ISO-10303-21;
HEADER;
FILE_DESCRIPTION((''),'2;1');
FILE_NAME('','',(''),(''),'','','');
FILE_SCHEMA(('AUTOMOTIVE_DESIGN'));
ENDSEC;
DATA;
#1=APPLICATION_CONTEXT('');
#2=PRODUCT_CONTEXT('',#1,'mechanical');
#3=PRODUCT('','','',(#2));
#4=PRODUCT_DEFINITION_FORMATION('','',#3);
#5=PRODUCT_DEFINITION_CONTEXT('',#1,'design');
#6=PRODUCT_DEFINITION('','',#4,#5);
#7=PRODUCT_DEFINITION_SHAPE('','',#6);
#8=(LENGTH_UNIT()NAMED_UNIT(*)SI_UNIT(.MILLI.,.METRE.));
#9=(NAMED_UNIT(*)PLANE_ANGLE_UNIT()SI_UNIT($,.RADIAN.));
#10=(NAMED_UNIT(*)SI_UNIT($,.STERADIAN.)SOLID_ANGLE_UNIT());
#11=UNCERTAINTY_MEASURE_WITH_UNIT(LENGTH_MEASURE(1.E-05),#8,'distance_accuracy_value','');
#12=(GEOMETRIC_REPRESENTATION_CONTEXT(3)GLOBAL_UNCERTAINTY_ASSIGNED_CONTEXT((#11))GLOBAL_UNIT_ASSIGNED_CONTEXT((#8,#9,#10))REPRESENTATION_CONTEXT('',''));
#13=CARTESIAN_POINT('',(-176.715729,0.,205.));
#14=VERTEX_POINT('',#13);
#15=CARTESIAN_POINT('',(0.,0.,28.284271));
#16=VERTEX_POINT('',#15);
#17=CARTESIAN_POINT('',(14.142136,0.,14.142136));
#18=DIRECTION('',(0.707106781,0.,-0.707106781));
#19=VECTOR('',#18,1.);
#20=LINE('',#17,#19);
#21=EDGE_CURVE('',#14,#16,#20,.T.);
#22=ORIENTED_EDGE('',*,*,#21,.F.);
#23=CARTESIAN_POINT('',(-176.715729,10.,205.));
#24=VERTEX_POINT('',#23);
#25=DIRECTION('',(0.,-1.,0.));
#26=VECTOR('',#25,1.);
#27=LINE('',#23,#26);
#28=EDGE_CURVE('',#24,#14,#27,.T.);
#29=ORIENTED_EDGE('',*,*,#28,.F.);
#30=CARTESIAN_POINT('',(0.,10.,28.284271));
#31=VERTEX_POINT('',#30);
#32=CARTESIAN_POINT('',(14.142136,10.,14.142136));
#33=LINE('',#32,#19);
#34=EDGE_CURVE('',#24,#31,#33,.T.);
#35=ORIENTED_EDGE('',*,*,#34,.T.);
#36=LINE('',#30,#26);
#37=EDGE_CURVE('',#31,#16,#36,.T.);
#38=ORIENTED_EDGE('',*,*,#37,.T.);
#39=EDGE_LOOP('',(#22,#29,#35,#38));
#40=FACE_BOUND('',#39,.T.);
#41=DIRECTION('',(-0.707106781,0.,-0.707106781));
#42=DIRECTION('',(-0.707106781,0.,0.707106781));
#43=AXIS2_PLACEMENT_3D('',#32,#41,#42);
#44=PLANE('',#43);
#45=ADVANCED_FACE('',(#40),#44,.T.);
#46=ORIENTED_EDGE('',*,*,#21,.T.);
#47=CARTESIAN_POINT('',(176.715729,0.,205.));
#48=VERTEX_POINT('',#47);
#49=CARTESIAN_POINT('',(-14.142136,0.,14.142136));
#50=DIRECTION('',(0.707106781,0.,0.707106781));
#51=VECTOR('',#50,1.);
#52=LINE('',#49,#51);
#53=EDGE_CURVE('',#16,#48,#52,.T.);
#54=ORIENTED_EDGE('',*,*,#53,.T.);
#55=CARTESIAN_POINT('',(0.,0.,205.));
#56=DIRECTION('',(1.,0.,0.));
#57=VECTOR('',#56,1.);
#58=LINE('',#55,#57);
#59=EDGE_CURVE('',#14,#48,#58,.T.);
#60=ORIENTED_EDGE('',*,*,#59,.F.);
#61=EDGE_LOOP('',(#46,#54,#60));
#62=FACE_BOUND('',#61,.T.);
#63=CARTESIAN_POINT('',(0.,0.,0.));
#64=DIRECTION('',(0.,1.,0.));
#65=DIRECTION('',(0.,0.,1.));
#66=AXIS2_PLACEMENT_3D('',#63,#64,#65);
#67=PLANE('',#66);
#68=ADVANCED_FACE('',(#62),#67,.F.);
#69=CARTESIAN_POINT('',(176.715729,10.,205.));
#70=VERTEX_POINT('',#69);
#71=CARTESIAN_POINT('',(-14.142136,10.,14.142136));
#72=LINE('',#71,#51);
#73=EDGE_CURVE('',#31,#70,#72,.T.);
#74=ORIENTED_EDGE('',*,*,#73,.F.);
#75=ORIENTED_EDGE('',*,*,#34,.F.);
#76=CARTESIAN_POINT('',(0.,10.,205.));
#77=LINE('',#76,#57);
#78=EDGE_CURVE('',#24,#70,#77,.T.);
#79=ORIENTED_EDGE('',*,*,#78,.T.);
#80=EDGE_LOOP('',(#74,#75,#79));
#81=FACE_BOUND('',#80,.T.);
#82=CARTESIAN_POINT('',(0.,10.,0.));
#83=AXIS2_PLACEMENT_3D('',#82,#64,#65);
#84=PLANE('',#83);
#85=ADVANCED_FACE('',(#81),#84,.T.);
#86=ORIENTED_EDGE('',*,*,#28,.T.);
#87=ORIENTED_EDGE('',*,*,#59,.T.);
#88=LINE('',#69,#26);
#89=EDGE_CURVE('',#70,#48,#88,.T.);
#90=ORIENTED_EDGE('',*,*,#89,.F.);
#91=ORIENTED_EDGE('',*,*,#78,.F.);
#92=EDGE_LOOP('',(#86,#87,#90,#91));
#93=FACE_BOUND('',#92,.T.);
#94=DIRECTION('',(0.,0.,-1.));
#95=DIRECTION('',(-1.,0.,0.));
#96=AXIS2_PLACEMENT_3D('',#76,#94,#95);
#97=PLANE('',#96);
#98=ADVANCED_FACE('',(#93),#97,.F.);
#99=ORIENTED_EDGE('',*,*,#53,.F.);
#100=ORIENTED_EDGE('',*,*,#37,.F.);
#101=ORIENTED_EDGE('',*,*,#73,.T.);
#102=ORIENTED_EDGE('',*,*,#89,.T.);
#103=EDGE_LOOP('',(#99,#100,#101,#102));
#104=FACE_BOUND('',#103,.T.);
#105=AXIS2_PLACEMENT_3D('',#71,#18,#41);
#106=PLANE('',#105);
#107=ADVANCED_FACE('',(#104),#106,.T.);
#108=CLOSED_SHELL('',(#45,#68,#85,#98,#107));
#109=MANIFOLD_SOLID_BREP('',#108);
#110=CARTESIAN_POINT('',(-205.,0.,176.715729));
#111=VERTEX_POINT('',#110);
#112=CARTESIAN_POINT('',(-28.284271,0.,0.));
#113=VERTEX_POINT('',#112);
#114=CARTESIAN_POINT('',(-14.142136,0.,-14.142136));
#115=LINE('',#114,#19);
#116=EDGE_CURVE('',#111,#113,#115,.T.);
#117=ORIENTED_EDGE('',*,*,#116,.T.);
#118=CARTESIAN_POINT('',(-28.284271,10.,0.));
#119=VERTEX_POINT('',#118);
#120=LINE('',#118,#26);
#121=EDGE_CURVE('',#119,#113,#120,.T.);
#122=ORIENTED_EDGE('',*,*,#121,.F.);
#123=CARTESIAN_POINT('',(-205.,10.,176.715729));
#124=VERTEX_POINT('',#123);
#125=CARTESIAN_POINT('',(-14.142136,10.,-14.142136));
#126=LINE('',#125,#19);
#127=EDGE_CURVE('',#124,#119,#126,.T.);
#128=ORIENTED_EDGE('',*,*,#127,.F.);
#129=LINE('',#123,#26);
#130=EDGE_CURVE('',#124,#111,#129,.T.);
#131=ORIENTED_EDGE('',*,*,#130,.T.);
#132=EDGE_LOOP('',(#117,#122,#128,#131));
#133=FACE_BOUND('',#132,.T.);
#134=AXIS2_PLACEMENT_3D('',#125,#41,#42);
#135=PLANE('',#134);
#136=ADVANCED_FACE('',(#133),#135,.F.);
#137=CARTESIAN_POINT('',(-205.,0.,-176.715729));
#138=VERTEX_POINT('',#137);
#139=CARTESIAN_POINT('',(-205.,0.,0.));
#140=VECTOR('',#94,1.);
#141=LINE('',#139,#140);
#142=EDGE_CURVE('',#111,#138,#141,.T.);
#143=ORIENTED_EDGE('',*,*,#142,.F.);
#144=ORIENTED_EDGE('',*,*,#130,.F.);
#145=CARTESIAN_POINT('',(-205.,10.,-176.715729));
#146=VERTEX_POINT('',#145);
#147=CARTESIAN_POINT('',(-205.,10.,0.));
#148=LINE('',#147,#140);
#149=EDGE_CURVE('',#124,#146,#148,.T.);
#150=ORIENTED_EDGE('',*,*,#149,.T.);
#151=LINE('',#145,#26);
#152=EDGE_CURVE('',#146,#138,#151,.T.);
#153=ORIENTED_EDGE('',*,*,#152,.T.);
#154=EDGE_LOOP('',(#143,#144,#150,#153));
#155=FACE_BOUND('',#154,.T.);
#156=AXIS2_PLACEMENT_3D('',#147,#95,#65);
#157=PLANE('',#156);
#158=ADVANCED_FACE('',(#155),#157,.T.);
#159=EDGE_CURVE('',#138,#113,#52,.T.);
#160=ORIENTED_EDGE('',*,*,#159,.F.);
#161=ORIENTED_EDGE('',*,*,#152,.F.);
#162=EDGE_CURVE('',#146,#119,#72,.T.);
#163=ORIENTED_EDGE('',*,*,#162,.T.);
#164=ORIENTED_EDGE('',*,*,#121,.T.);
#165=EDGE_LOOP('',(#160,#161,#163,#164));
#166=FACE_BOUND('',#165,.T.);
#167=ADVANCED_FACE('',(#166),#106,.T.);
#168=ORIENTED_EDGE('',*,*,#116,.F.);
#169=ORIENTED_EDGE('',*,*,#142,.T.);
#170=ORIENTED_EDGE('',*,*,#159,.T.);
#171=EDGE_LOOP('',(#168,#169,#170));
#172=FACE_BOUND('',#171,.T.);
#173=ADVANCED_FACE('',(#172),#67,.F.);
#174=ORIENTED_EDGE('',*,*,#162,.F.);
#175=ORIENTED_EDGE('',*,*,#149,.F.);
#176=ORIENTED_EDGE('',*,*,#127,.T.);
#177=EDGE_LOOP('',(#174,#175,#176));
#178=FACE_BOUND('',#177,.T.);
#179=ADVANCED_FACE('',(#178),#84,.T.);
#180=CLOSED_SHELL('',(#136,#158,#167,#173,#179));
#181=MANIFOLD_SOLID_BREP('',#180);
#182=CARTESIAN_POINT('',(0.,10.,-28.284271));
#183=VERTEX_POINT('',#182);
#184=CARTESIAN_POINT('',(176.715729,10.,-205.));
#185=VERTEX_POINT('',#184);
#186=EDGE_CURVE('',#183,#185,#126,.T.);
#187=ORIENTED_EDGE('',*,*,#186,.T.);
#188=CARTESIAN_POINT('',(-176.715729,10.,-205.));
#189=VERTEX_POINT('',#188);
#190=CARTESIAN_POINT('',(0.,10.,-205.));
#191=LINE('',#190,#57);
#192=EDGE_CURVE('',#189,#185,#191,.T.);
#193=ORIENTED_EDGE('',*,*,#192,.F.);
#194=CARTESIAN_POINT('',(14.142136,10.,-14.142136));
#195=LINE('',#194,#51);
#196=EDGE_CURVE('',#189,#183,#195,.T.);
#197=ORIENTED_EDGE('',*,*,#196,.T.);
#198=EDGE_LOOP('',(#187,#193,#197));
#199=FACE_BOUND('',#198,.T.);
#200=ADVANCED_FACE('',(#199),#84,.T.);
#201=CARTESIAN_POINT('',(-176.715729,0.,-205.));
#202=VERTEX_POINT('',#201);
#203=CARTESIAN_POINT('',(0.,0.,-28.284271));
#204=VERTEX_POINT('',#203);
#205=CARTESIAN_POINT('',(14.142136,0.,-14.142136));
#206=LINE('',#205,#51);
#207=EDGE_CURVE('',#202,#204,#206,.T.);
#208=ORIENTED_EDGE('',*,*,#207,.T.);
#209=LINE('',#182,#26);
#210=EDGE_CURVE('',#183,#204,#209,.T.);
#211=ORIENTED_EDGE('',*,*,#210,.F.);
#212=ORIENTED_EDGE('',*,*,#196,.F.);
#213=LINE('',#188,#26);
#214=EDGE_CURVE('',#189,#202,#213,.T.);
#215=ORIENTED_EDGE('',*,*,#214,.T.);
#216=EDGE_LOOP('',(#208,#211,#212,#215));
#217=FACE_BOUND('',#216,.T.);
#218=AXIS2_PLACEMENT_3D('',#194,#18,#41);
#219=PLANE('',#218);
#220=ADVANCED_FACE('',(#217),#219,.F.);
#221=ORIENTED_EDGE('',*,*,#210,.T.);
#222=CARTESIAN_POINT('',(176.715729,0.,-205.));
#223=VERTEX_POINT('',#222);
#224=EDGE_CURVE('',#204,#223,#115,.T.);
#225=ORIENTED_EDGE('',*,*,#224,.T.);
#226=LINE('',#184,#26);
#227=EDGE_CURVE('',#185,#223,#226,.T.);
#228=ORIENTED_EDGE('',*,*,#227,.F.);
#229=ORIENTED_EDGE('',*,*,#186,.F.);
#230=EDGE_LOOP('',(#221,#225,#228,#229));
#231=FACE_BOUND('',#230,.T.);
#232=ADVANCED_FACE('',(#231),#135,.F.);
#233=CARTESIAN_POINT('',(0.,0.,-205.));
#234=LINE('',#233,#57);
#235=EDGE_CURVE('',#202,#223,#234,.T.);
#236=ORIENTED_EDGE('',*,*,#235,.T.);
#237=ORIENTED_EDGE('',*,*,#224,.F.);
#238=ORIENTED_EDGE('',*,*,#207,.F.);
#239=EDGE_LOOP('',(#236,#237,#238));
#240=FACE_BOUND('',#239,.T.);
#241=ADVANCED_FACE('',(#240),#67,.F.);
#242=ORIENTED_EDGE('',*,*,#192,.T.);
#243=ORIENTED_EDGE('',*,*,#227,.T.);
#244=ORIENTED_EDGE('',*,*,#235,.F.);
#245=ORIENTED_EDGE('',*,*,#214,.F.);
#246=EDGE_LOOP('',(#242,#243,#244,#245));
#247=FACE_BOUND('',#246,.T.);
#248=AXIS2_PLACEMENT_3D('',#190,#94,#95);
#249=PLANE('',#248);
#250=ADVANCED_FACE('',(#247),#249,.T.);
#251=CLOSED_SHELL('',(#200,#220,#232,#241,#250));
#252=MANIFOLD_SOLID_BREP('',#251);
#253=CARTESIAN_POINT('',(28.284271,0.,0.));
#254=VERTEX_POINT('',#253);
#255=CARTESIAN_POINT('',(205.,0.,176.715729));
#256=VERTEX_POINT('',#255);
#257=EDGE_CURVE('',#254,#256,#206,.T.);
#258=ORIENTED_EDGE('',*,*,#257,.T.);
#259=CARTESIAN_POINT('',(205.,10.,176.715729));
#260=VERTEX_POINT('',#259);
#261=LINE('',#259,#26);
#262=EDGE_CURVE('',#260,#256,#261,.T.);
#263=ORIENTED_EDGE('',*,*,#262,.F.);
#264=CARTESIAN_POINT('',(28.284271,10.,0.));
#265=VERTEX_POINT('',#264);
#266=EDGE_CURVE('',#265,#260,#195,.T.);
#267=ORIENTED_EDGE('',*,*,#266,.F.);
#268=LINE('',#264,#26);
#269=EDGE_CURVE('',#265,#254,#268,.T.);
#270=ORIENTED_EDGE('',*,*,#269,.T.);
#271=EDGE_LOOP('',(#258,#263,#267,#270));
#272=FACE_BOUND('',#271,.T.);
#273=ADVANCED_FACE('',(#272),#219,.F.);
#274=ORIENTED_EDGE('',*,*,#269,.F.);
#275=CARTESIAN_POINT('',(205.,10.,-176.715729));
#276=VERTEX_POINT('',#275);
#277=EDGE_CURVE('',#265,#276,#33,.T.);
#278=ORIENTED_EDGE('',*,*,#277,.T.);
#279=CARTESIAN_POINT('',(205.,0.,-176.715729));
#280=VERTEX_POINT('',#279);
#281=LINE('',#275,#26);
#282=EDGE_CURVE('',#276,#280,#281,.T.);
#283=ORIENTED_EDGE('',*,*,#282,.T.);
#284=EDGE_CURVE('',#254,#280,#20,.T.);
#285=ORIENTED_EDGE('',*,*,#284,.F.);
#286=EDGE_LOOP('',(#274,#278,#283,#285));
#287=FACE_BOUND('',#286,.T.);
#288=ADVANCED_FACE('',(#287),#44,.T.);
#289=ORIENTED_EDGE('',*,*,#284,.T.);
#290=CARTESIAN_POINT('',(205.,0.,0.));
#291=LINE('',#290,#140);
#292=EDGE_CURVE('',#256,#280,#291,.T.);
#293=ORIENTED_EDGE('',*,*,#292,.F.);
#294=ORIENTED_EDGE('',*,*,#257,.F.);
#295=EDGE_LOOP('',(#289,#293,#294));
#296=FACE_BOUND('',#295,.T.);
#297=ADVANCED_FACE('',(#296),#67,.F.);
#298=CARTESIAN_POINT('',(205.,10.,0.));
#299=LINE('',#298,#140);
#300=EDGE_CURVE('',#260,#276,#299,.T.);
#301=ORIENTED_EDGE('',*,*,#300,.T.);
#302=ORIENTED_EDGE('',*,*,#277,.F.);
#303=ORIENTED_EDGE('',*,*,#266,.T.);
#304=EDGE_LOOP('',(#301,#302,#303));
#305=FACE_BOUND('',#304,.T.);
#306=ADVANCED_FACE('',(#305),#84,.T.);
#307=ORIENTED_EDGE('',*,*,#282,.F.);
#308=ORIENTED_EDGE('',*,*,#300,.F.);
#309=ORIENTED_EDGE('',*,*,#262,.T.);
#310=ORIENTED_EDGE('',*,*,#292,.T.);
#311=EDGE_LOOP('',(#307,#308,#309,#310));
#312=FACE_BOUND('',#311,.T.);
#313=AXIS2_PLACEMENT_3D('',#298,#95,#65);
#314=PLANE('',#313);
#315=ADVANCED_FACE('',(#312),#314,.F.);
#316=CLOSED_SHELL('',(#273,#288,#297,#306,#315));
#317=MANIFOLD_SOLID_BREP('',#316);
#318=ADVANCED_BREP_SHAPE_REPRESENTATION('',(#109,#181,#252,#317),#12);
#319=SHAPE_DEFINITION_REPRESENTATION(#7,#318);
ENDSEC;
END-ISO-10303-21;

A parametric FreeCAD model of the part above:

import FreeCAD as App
import Part
import Sketcher
from FreeCAD import Vector
Q = App.Units.Quantity

doc = App.newDocument("Part")
body = doc.addObject("PartDesign::Body", "Body")

# Sketch on XZ plane
sketch1 = doc.addObject("Sketcher::SketchObject", "Sketch")
body.addObject(sketch1)
sketch1.AttachmentSupport = (doc.XZ_Plane, [""])
sketch1.MapMode = "FlatFace"
sketch1.addGeometry(Part.LineSegment(Vector(-205, -177, 0), Vector(-205, 177, 0)), False)
sketch1.addGeometry(Part.LineSegment(Vector(-205, 177, 0), Vector(-28, 0, 0)), False)
sketch1.addGeometry(Part.LineSegment(Vector(-28, 0, 0), Vector(-205, -177, 0)), False)
sketch1.addConstraint(Sketcher.Constraint("Coincident", 0, 2, 1, 1))
sketch1.addConstraint(Sketcher.Constraint("Coincident", 1, 2, 2, 1))
sketch1.addConstraint(Sketcher.Constraint("Coincident", 2, 2, 0, 1))
sketch1.addConstraint(Sketcher.Constraint("Vertical", 0))
sketch1.addConstraint(Sketcher.Constraint("PointOnObject", 1, 2, -1))
sketch1.addConstraint(Sketcher.Constraint("Perpendicular", 1, 2))
sketch1.addConstraint(Sketcher.Constraint("Equal", 1, 2))
sketch1.addConstraint(Sketcher.Constraint("DistanceX", 0, 2, -1, 1, Q("205 mm")))
sketch1.addConstraint(Sketcher.Constraint("Distance", 1, Q("249.91378 mm")))
pad1 = doc.addObject("PartDesign::Pad", "Pad")
body.addObject(pad1)
pad1.Profile = sketch1
pad1.Length = 10
pad1.Reversed = True
body2 = doc.addObject("PartDesign::Body", "Body001")

# Sketch on XZ plane
sketch2 = doc.addObject("Sketcher::SketchObject", "Sketch001")
body2.addObject(sketch2)
sketch2.AttachmentSupport = (doc.getObject("XZ_Plane001"), [""])
sketch2.MapMode = "FlatFace"
sketch2.addGeometry(Part.LineSegment(Vector(-177, -205, 0), Vector(0, -28, 0)), False)
sketch2.addGeometry(Part.LineSegment(Vector(0, -28, 0), Vector(177, -205, 0)), False)
sketch2.addGeometry(Part.LineSegment(Vector(177, -205, 0), Vector(-177, -205, 0)), False)
sketch2.addConstraint(Sketcher.Constraint("Coincident", 0, 2, 1, 1))
sketch2.addConstraint(Sketcher.Constraint("Coincident", 1, 2, 2, 1))
sketch2.addConstraint(Sketcher.Constraint("Coincident", 2, 2, 0, 1))
sketch2.addConstraint(Sketcher.Constraint("Horizontal", 2))
sketch2.addConstraint(Sketcher.Constraint("PointOnObject", 0, 2, -2))
sketch2.addConstraint(Sketcher.Constraint("Perpendicular", 0, 1))
sketch2.addConstraint(Sketcher.Constraint("Equal", 0, 1))
sketch2.addConstraint(Sketcher.Constraint("DistanceY", 1, 2, -1, 1, Q("205 mm")))
sketch2.addConstraint(Sketcher.Constraint("Distance", 0, Q("249.91378 mm")))
pad2 = doc.addObject("PartDesign::Pad", "Pad001")
body2.addObject(pad2)
pad2.Profile = sketch2
pad2.Length = 10
pad2.Reversed = True
body3 = doc.addObject("PartDesign::Body", "Body002")

# Sketch on XZ plane
sketch3 = doc.addObject("Sketcher::SketchObject", "Sketch002")
body3.addObject(sketch3)
sketch3.AttachmentSupport = (doc.getObject("XZ_Plane002"), [""])
sketch3.MapMode = "FlatFace"
sketch3.addGeometry(Part.LineSegment(Vector(205, -177, 0), Vector(28, 0, 0)), False)
sketch3.addGeometry(Part.LineSegment(Vector(28, 0, 0), Vector(205, 177, 0)), False)
sketch3.addGeometry(Part.LineSegment(Vector(205, 177, 0), Vector(205, -177, 0)), False)
sketch3.addConstraint(Sketcher.Constraint("Coincident", 0, 2, 1, 1))
sketch3.addConstraint(Sketcher.Constraint("Coincident", 1, 2, 2, 1))
sketch3.addConstraint(Sketcher.Constraint("Coincident", 2, 2, 0, 1))
sketch3.addConstraint(Sketcher.Constraint("Vertical", 2))
sketch3.addConstraint(Sketcher.Constraint("PointOnObject", 0, 2, -1))
sketch3.addConstraint(Sketcher.Constraint("Perpendicular", 0, 1))
sketch3.addConstraint(Sketcher.Constraint("Equal", 0, 1))
sketch3.addConstraint(Sketcher.Constraint("DistanceX", -1, 1, 1, 2, Q("205 mm")))
sketch3.addConstraint(Sketcher.Constraint("Distance", 0, Q("249.91378 mm")))
pad3 = doc.addObject("PartDesign::Pad", "Pad002")
body3.addObject(pad3)
pad3.Profile = sketch3
pad3.Length = 10
pad3.Reversed = True
body4 = doc.addObject("PartDesign::Body", "Body003")

# Sketch on XZ plane
sketch4 = doc.addObject("Sketcher::SketchObject", "Sketch003")
body4.addObject(sketch4)
sketch4.AttachmentSupport = (doc.getObject("XZ_Plane003"), [""])
sketch4.MapMode = "FlatFace"
sketch4.addGeometry(Part.LineSegment(Vector(177, 205, 0), Vector(0, 28, 0)), False)
sketch4.addGeometry(Part.LineSegment(Vector(0, 28, 0), Vector(-177, 205, 0)), False)
sketch4.addGeometry(Part.LineSegment(Vector(-177, 205, 0), Vector(177, 205, 0)), False)
sketch4.addConstraint(Sketcher.Constraint("Coincident", 0, 2, 1, 1))
sketch4.addConstraint(Sketcher.Constraint("Coincident", 1, 2, 2, 1))
sketch4.addConstraint(Sketcher.Constraint("Coincident", 2, 2, 0, 1))
sketch4.addConstraint(Sketcher.Constraint("Horizontal", 2))
sketch4.addConstraint(Sketcher.Constraint("PointOnObject", 0, 2, -2))
sketch4.addConstraint(Sketcher.Constraint("Perpendicular", 0, 1))
sketch4.addConstraint(Sketcher.Constraint("Equal", 0, 1))
sketch4.addConstraint(Sketcher.Constraint("DistanceY", -1, 1, 1, 2, Q("205 mm")))
sketch4.addConstraint(Sketcher.Constraint("Distance", 0, Q("249.91378 mm")))
pad4 = doc.addObject("PartDesign::Pad", "Pad003")
body4.addObject(pad4)
pad4.Profile = sketch4
pad4.Length = 10
pad4.Reversed = True

doc.recompute()
